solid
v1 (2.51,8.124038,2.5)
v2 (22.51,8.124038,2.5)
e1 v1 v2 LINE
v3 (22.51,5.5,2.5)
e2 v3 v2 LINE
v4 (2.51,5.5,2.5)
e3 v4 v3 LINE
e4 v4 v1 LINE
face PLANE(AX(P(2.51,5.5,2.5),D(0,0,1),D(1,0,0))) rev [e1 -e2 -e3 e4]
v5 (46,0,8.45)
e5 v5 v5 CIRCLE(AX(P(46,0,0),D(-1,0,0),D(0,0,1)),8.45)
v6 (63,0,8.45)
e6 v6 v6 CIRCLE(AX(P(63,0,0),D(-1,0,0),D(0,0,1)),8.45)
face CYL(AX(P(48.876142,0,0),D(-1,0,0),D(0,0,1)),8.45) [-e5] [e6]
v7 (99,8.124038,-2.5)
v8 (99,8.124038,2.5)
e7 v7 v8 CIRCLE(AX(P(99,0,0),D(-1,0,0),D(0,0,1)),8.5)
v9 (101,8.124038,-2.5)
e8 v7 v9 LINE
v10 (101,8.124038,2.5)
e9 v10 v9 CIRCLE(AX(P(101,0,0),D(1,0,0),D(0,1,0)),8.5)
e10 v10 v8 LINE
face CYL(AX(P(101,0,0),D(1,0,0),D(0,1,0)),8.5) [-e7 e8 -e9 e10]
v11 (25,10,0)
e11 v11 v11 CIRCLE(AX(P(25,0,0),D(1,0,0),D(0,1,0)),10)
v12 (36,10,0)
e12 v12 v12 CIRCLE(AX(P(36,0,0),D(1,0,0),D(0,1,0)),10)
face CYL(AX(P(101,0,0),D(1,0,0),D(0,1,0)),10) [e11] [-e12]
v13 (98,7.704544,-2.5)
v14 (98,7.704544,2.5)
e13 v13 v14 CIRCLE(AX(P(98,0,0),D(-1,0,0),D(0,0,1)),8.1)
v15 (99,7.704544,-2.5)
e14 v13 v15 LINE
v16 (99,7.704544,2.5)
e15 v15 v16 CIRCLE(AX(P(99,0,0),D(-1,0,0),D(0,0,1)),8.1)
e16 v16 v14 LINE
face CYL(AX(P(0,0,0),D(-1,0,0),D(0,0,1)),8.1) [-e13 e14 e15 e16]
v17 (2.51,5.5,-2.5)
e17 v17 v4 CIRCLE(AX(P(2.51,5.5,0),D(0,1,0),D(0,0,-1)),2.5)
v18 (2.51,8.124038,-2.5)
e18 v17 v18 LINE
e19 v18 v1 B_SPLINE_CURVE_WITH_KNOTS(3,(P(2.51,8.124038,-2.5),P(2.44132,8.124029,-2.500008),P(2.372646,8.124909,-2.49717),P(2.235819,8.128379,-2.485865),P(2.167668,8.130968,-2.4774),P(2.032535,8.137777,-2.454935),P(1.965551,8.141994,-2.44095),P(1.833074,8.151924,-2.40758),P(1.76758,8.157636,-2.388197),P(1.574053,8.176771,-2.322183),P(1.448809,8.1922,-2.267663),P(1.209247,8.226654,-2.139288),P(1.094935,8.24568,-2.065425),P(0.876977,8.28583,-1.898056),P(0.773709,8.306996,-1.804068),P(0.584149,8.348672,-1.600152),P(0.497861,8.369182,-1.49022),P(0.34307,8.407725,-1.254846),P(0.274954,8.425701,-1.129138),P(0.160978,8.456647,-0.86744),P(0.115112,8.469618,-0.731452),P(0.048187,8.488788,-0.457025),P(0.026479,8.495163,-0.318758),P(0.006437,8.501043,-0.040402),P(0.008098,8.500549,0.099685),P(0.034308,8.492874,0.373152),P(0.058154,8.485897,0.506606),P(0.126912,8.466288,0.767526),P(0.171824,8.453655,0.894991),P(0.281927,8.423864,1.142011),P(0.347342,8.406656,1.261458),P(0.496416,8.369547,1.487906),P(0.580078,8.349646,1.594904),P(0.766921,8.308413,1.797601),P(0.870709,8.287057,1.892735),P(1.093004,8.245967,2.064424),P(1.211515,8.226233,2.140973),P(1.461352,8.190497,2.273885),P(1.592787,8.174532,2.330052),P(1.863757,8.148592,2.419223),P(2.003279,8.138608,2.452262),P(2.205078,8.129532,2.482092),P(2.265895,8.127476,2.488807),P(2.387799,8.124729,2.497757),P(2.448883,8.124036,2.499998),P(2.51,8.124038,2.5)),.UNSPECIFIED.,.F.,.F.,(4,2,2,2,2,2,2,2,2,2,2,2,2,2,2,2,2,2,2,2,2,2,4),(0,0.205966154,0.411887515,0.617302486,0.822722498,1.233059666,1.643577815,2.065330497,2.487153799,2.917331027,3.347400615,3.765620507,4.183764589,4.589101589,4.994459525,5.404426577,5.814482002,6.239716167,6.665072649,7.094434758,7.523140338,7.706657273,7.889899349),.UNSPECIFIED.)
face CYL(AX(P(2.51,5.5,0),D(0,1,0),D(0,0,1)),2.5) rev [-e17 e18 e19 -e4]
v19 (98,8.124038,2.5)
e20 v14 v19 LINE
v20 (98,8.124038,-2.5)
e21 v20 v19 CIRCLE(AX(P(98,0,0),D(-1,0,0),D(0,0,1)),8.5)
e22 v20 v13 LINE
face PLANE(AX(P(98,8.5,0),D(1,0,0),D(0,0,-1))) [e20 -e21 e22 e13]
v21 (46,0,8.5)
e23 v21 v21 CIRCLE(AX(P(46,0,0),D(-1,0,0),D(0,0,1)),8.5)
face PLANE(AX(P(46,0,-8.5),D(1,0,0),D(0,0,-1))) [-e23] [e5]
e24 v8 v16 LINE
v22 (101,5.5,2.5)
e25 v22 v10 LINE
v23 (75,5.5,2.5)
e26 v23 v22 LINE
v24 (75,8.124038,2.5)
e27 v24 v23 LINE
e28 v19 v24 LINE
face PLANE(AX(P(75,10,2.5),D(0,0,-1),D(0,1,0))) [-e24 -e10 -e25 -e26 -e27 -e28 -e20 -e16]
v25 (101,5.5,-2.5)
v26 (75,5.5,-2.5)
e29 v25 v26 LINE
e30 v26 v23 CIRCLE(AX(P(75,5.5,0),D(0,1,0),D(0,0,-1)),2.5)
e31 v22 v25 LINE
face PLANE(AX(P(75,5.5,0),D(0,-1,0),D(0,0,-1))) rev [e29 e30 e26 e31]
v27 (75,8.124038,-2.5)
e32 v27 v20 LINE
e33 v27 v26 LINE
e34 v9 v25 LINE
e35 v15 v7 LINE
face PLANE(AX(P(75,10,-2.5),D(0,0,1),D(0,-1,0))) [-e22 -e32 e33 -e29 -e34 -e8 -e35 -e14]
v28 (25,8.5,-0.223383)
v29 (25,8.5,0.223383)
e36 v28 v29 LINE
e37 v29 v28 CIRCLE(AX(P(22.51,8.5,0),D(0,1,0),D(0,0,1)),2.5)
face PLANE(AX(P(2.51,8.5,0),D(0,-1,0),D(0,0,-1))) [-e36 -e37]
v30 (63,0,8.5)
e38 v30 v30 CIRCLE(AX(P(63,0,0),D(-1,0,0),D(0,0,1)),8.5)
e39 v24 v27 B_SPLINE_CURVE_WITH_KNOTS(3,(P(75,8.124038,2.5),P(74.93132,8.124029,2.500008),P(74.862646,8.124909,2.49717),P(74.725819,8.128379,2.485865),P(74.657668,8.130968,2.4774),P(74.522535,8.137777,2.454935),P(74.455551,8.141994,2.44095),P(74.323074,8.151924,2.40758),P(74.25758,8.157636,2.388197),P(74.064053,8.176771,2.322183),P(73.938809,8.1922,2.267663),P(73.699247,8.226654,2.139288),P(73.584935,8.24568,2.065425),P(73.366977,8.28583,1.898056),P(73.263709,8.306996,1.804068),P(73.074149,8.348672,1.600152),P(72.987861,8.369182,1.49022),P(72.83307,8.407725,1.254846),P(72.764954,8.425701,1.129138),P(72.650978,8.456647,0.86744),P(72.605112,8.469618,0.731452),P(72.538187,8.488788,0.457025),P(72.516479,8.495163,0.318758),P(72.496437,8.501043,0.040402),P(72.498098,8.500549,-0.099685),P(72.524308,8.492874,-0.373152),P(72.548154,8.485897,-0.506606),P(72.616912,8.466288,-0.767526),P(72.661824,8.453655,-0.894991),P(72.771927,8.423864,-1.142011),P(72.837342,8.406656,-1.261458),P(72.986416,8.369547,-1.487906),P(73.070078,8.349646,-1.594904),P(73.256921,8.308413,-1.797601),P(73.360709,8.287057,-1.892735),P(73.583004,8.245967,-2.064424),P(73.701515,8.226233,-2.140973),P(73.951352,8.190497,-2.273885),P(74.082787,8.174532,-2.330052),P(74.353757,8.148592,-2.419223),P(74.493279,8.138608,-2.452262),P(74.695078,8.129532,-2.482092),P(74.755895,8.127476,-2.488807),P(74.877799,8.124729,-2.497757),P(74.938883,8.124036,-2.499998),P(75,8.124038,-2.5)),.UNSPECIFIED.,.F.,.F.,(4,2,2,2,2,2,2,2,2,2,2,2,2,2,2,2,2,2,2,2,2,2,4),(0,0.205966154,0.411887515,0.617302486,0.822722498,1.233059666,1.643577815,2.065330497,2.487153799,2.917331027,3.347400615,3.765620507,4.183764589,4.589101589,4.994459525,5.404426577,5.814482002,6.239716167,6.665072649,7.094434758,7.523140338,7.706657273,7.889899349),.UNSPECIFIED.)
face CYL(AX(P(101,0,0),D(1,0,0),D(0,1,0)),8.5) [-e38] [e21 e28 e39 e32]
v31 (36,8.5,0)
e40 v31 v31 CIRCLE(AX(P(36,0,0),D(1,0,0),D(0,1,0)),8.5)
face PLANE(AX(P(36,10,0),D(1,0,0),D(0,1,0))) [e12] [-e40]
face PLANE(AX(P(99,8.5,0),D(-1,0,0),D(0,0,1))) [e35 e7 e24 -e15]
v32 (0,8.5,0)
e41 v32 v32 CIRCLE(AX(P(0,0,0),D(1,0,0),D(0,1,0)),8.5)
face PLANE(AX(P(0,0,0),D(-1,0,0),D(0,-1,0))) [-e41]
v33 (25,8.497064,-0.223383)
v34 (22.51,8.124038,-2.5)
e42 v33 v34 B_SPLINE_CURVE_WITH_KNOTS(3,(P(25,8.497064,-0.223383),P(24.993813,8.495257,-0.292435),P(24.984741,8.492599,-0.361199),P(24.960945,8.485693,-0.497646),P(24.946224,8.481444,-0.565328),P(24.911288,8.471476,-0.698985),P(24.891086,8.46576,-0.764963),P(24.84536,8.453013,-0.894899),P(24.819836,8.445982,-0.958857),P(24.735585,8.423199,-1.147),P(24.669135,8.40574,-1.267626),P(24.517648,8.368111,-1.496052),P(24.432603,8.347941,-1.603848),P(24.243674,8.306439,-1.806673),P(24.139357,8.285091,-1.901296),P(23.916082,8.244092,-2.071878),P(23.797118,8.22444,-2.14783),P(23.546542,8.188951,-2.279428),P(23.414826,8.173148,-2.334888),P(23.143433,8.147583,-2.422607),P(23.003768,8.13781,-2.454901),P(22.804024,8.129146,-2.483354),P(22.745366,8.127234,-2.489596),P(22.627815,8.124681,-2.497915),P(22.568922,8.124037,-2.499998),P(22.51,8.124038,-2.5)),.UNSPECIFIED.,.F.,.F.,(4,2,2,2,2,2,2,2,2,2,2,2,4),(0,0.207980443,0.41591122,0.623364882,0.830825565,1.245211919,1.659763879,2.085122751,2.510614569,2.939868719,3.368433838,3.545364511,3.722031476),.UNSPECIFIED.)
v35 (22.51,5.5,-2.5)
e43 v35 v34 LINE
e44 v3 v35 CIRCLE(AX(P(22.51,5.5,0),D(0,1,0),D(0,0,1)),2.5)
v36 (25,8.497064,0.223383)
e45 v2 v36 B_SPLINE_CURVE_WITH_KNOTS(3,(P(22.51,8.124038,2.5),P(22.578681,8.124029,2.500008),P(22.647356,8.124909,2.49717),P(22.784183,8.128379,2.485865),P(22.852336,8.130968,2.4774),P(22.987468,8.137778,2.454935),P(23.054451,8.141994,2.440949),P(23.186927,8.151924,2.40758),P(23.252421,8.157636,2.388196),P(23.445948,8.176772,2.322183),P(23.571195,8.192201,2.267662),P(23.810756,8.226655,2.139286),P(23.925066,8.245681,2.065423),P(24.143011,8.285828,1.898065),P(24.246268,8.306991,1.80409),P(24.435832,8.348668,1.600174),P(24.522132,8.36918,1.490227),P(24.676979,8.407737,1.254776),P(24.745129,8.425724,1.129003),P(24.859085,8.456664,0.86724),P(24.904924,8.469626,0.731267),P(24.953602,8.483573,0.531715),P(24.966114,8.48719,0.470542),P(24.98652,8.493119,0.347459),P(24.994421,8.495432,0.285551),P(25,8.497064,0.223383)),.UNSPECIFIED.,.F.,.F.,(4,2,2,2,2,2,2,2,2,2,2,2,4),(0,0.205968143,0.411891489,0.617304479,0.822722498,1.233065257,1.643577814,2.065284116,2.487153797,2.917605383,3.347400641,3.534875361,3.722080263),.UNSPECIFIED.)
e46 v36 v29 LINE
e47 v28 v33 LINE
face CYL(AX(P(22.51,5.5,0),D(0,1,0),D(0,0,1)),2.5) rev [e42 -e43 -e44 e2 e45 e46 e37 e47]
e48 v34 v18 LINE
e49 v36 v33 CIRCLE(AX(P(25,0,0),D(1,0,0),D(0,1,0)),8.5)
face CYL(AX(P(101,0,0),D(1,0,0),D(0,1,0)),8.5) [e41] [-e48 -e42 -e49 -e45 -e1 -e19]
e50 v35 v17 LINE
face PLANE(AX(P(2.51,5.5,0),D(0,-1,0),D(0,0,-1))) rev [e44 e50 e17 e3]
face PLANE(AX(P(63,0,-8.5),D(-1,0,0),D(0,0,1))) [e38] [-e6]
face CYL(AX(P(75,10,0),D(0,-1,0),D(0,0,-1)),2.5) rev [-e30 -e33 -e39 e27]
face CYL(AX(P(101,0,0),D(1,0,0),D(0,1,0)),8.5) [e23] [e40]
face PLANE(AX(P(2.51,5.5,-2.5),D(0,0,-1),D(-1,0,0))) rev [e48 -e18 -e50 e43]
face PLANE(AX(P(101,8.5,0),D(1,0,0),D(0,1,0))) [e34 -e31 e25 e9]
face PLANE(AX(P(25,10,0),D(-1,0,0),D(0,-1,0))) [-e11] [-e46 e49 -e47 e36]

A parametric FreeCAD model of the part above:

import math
import FreeCAD as App
import Part
import Sketcher
from FreeCAD import Vector
Q = App.Units.Quantity

doc = App.newDocument("Part")
body = doc.addObject("PartDesign::Body", "Body")

# Sketch on XY plane
sketch1 = body.newObject("Sketcher::SketchObject", "Sketch")
sketch1.AttachmentSupport = (doc.getObject("XY_Plane"), [""])
sketch1.MapMode = "FlatFace"
sketch1.addGeometry(Part.LineSegment(Vector(0, 8.5, 0), Vector(0, 0, 0)), False)
sketch1.addGeometry(Part.LineSegment(Vector(0, 0, 0), Vector(101, 0, 0)), False)
sketch1.addGeometry(Part.LineSegment(Vector(101, 0, 0), Vector(101, 8.5, 0)), False)
sketch1.addGeometry(Part.LineSegment(Vector(101, 8.5, 0), Vector(36, 8.5, 0)), False)
sketch1.addGeometry(Part.LineSegment(Vector(36, 8.5, 0), Vector(36, 10, 0)), False)
sketch1.addGeometry(Part.LineSegment(Vector(36, 10, 0), Vector(25, 10, 0)), False)
sketch1.addGeometry(Part.LineSegment(Vector(25, 10, 0), Vector(25, 8.5, 0)), False)
sketch1.addGeometry(Part.LineSegment(Vector(25, 8.5, 0), Vector(0, 8.5, 0)), False)
sketch1.addConstraint(Sketcher.Constraint("Coincident", 0, 2, 1, 1))
sketch1.addConstraint(Sketcher.Constraint("Coincident", 1, 2, 2, 1))
sketch1.addConstraint(Sketcher.Constraint("Coincident", 2, 2, 3, 1))
sketch1.addConstraint(Sketcher.Constraint("Coincident", 3, 2, 4, 1))
sketch1.addConstraint(Sketcher.Constraint("Coincident", 4, 2, 5, 1))
sketch1.addConstraint(Sketcher.Constraint("Coincident", 5, 2, 6, 1))
sketch1.addConstraint(Sketcher.Constraint("Coincident", 6, 2, 7, 1))
sketch1.addConstraint(Sketcher.Constraint("Coincident", 7, 2, 0, 1))
sketch1.addConstraint(Sketcher.Constraint("Vertical", 0))
sketch1.addConstraint(Sketcher.Constraint("Horizontal", 1))
sketch1.addConstraint(Sketcher.Constraint("Vertical", 2))
sketch1.addConstraint(Sketcher.Constraint("Horizontal", 3))
sketch1.addConstraint(Sketcher.Constraint("Vertical", 4))
sketch1.addConstraint(Sketcher.Constraint("Horizontal", 5))
sketch1.addConstraint(Sketcher.Constraint("Vertical", 6))
sketch1.addConstraint(Sketcher.Constraint("Horizontal", 7))
sketch1.addConstraint(Sketcher.Constraint("Coincident", 0, 2, -1, 1))
sketch1.addConstraint(Sketcher.Constraint("Horizontal", 3, 2, 6, 2))
sketch1.addConstraint(Sketcher.Constraint("DistanceX", 1, 1, 1, 2, Q("101 mm")))
sketch1.addConstraint(Sketcher.Constraint("DistanceX", 3, 2, 3, 1, Q("65 mm")))
sketch1.addConstraint(Sketcher.Constraint("DistanceX", 5, 2, 5, 1, Q("11 mm")))
sketch1.addConstraint(Sketcher.Constraint("DistanceY", 0, 2, 0, 1, Q("8.5 mm")))
sketch1.addConstraint(Sketcher.Constraint("DistanceY", 4, 1, 4, 2, Q("1.5 mm")))
revolution = body.newObject("PartDesign::Revolution", "Revolution")
revolution.Profile = sketch1
revolution.ReferenceAxis = (sketch1, ["H_Axis"])
revolution.Angle = 360

# Sketch on XY plane
sketch2 = body.newObject("Sketcher::SketchObject", "Sketch001")
sketch2.AttachmentSupport = (doc.getObject("XY_Plane"), [""])
sketch2.MapMode = "FlatFace"
sketch2.addGeometry(Part.LineSegment(Vector(98, 8.5, 0), Vector(98, 8.1, 0)), False)
sketch2.addGeometry(Part.LineSegment(Vector(98, 8.1, 0), Vector(99, 8.1, 0)), False)
sketch2.addGeometry(Part.LineSegment(Vector(99, 8.1, 0), Vector(99, 8.5, 0)), False)
sketch2.addGeometry(Part.LineSegment(Vector(99, 8.5, 0), Vector(98, 8.5, 0)), False)
sketch2.addConstraint(Sketcher.Constraint("Coincident", 0, 2, 1, 1))
sketch2.addConstraint(Sketcher.Constraint("Coincident", 1, 2, 2, 1))
sketch2.addConstraint(Sketcher.Constraint("Coincident", 2, 2, 3, 1))
sketch2.addConstraint(Sketcher.Constraint("Coincident", 3, 2, 0, 1))
sketch2.addConstraint(Sketcher.Constraint("Vertical", 0))
sketch2.addConstraint(Sketcher.Constraint("Horizontal", 1))
sketch2.addConstraint(Sketcher.Constraint("Vertical", 2))
sketch2.addConstraint(Sketcher.Constraint("Horizontal", 3))
sketch2.addConstraint(Sketcher.Constraint("DistanceX", 1, 1, 1, 2, Q("1 mm")))
sketch2.addConstraint(Sketcher.Constraint("DistanceY", 0, 2, 0, 1, Q("0.4 mm")))
sketch2.addConstraint(Sketcher.Constraint("DistanceX", -1, 1, 0, 2, Q("98 mm")))
sketch2.addConstraint(Sketcher.Constraint("DistanceY", -1, 1, 0, 2, Q("8.1 mm")))
groove = body.newObject("PartDesign::Groove", "Groove")
groove.Profile = sketch2
groove.ReferenceAxis = (sketch2, ["H_Axis"])
groove.Angle = 360

# Sketch on XZ plane
sketch3 = body.newObject("Sketcher::SketchObject", "Sketch002")
sketch3.AttachmentSupport = (doc.getObject("XZ_Plane"), [""])
sketch3.MapMode = "FlatFace"
sketch3.AttachmentOffset = App.Placement(Vector(0, 0, -8.5), App.Rotation())
sketch3.addGeometry(Part.LineSegment(Vector(75, 2.5, 0), Vector(105, 2.5, 0)), False)
sketch3.addGeometry(Part.ArcOfCircle(Part.Circle(Vector(105, 0, 0), Vector(0, 0, 1), 2.5), math.radians(-90), math.radians(90)), False)
sketch3.addGeometry(Part.LineSegment(Vector(105, -2.5, 0), Vector(75, -2.5, 0)), False)
sketch3.addGeometry(Part.ArcOfCircle(Part.Circle(Vector(75, 0, 0), Vector(0, 0, 1), 2.5), math.radians(90), math.radians(270)), False)
sketch3.addConstraint(Sketcher.Constraint("Tangent", 0, 2, 1, 2))
sketch3.addConstraint(Sketcher.Constraint("Tangent", 1, 1, 2, 1))
sketch3.addConstraint(Sketcher.Constraint("Tangent", 2, 2, 3, 2))
sketch3.addConstraint(Sketcher.Constraint("Tangent", 3, 1, 0, 1))
sketch3.addConstraint(Sketcher.Constraint("Horizontal", 0))
sketch3.addConstraint(Sketcher.Constraint("Horizontal", 2))
sketch3.addConstraint(Sketcher.Constraint("PointOnObject", 1, 3, -1))
sketch3.addConstraint(Sketcher.Constraint("Radius", 1, Q("2.5 mm")))
sketch3.addConstraint(Sketcher.Constraint("DistanceX", 0, 1, 0, 2, Q("30 mm")))
sketch3.addConstraint(Sketcher.Constraint("DistanceX", -1, 1, 1, 3, Q("105 mm")))
pocket1 = body.newObject("PartDesign::Pocket", "Pocket")
pocket1.Profile = sketch3
pocket1.Type = "TwoLengths"
pocket1.Length = 104.166128
pocket1.Length2 = 3

# Sketch on XZ plane
sketch4 = body.newObject("Sketcher::SketchObject", "Sketch003")
sketch4.AttachmentSupport = (doc.getObject("XZ_Plane"), [""])
sketch4.MapMode = "FlatFace"
sketch4.AttachmentOffset = App.Placement(Vector(0, 0, -8.5), App.Rotation())
sketch4.addGeometry(Part.LineSegment(Vector(2.51, 2.5, 0), Vector(22.51, 2.5, 0)), False)
sketch4.addGeometry(Part.ArcOfCircle(Part.Circle(Vector(22.51, 0, 0), Vector(0, 0, 1), 2.5), math.radians(-90), math.radians(90)), False)
sketch4.addGeometry(Part.LineSegment(Vector(22.51, -2.5, 0), Vector(2.51, -2.5, 0)), False)
sketch4.addGeometry(Part.ArcOfCircle(Part.Circle(Vector(2.51, 0, 0), Vector(0, 0, 1), 2.5), math.radians(90), math.radians(270)), False)
sketch4.addConstraint(Sketcher.Constraint("Tangent", 0, 2, 1, 2))
sketch4.addConstraint(Sketcher.Constraint("Tangent", 1, 1, 2, 1))
sketch4.addConstraint(Sketcher.Constraint("Tangent", 2, 2, 3, 2))
sketch4.addConstraint(Sketcher.Constraint("Tangent", 3, 1, 0, 1))
sketch4.addConstraint(Sketcher.Constraint("Horizontal", 0))
sketch4.addConstraint(Sketcher.Constraint("Horizontal", 2))
sketch4.addConstraint(Sketcher.Constraint("PointOnObject", 1, 3, -1))
sketch4.addConstraint(Sketcher.Constraint("Radius", 1, Q("2.5 mm")))
sketch4.addConstraint(Sketcher.Constraint("DistanceX", 0, 1, 0, 2, Q("20 mm")))
sketch4.addConstraint(Sketcher.Constraint("DistanceX", -1, 1, 1, 3, Q("22.51 mm")))
pocket2 = body.newObject("PartDesign::Pocket", "Pocket001")
pocket2.Profile = sketch4
pocket2.Length = 3
pocket2.Reversed = True

# Sketch on XZ plane
sketch5 = body.newObject("Sketcher::SketchObject", "Sketch004")
sketch5.AttachmentSupport = (doc.getObject("XZ_Plane"), [""])
sketch5.MapMode = "FlatFace"
sketch5.addGeometry(Part.LineSegment(Vector(46, -8.5, 0), Vector(46, -8.45, 0)), False)
sketch5.addGeometry(Part.LineSegment(Vector(46, -8.45, 0), Vector(63, -8.45, 0)), False)
sketch5.addGeometry(Part.LineSegment(Vector(63, -8.45, 0), Vector(63, -8.5, 0)), False)
sketch5.addGeometry(Part.LineSegment(Vector(63, -8.5, 0), Vector(46, -8.5, 0)), False)
sketch5.addConstraint(Sketcher.Constraint("Coincident", 0, 2, 1, 1))
sketch5.addConstraint(Sketcher.Constraint("Coincident", 1, 2, 2, 1))
sketch5.addConstraint(Sketcher.Constraint("Coincident", 2, 2, 3, 1))
sketch5.addConstraint(Sketcher.Constraint("Coincident", 3, 2, 0, 1))
sketch5.addConstraint(Sketcher.Constraint("Vertical", 0))
sketch5.addConstraint(Sketcher.Constraint("Horizontal", 1))
sketch5.addConstraint(Sketcher.Constraint("Vertical", 2))
sketch5.addConstraint(Sketcher.Constraint("Horizontal", 3))
sketch5.addConstraint(Sketcher.Constraint("DistanceX", 1, 1, 1, 2, Q("17 mm")))
sketch5.addConstraint(Sketcher.Constraint("DistanceX", -1, 1, 0, 2, Q("46 mm")))
sketch5.addConstraint(Sketcher.Constraint("DistanceY", 0, 1, 0, 2, Q("0.05 mm")))
sketch5.addConstraint(Sketcher.Constraint("DistanceY", 2, 2, -1, 1, Q("8.5 mm")))
groove2 = body.newObject("PartDesign::Groove", "Groove001")
groove2.Profile = sketch5
groove2.ReferenceAxis = (sketch5, ["H_Axis"])
groove2.Angle = 360

doc.recompute()
